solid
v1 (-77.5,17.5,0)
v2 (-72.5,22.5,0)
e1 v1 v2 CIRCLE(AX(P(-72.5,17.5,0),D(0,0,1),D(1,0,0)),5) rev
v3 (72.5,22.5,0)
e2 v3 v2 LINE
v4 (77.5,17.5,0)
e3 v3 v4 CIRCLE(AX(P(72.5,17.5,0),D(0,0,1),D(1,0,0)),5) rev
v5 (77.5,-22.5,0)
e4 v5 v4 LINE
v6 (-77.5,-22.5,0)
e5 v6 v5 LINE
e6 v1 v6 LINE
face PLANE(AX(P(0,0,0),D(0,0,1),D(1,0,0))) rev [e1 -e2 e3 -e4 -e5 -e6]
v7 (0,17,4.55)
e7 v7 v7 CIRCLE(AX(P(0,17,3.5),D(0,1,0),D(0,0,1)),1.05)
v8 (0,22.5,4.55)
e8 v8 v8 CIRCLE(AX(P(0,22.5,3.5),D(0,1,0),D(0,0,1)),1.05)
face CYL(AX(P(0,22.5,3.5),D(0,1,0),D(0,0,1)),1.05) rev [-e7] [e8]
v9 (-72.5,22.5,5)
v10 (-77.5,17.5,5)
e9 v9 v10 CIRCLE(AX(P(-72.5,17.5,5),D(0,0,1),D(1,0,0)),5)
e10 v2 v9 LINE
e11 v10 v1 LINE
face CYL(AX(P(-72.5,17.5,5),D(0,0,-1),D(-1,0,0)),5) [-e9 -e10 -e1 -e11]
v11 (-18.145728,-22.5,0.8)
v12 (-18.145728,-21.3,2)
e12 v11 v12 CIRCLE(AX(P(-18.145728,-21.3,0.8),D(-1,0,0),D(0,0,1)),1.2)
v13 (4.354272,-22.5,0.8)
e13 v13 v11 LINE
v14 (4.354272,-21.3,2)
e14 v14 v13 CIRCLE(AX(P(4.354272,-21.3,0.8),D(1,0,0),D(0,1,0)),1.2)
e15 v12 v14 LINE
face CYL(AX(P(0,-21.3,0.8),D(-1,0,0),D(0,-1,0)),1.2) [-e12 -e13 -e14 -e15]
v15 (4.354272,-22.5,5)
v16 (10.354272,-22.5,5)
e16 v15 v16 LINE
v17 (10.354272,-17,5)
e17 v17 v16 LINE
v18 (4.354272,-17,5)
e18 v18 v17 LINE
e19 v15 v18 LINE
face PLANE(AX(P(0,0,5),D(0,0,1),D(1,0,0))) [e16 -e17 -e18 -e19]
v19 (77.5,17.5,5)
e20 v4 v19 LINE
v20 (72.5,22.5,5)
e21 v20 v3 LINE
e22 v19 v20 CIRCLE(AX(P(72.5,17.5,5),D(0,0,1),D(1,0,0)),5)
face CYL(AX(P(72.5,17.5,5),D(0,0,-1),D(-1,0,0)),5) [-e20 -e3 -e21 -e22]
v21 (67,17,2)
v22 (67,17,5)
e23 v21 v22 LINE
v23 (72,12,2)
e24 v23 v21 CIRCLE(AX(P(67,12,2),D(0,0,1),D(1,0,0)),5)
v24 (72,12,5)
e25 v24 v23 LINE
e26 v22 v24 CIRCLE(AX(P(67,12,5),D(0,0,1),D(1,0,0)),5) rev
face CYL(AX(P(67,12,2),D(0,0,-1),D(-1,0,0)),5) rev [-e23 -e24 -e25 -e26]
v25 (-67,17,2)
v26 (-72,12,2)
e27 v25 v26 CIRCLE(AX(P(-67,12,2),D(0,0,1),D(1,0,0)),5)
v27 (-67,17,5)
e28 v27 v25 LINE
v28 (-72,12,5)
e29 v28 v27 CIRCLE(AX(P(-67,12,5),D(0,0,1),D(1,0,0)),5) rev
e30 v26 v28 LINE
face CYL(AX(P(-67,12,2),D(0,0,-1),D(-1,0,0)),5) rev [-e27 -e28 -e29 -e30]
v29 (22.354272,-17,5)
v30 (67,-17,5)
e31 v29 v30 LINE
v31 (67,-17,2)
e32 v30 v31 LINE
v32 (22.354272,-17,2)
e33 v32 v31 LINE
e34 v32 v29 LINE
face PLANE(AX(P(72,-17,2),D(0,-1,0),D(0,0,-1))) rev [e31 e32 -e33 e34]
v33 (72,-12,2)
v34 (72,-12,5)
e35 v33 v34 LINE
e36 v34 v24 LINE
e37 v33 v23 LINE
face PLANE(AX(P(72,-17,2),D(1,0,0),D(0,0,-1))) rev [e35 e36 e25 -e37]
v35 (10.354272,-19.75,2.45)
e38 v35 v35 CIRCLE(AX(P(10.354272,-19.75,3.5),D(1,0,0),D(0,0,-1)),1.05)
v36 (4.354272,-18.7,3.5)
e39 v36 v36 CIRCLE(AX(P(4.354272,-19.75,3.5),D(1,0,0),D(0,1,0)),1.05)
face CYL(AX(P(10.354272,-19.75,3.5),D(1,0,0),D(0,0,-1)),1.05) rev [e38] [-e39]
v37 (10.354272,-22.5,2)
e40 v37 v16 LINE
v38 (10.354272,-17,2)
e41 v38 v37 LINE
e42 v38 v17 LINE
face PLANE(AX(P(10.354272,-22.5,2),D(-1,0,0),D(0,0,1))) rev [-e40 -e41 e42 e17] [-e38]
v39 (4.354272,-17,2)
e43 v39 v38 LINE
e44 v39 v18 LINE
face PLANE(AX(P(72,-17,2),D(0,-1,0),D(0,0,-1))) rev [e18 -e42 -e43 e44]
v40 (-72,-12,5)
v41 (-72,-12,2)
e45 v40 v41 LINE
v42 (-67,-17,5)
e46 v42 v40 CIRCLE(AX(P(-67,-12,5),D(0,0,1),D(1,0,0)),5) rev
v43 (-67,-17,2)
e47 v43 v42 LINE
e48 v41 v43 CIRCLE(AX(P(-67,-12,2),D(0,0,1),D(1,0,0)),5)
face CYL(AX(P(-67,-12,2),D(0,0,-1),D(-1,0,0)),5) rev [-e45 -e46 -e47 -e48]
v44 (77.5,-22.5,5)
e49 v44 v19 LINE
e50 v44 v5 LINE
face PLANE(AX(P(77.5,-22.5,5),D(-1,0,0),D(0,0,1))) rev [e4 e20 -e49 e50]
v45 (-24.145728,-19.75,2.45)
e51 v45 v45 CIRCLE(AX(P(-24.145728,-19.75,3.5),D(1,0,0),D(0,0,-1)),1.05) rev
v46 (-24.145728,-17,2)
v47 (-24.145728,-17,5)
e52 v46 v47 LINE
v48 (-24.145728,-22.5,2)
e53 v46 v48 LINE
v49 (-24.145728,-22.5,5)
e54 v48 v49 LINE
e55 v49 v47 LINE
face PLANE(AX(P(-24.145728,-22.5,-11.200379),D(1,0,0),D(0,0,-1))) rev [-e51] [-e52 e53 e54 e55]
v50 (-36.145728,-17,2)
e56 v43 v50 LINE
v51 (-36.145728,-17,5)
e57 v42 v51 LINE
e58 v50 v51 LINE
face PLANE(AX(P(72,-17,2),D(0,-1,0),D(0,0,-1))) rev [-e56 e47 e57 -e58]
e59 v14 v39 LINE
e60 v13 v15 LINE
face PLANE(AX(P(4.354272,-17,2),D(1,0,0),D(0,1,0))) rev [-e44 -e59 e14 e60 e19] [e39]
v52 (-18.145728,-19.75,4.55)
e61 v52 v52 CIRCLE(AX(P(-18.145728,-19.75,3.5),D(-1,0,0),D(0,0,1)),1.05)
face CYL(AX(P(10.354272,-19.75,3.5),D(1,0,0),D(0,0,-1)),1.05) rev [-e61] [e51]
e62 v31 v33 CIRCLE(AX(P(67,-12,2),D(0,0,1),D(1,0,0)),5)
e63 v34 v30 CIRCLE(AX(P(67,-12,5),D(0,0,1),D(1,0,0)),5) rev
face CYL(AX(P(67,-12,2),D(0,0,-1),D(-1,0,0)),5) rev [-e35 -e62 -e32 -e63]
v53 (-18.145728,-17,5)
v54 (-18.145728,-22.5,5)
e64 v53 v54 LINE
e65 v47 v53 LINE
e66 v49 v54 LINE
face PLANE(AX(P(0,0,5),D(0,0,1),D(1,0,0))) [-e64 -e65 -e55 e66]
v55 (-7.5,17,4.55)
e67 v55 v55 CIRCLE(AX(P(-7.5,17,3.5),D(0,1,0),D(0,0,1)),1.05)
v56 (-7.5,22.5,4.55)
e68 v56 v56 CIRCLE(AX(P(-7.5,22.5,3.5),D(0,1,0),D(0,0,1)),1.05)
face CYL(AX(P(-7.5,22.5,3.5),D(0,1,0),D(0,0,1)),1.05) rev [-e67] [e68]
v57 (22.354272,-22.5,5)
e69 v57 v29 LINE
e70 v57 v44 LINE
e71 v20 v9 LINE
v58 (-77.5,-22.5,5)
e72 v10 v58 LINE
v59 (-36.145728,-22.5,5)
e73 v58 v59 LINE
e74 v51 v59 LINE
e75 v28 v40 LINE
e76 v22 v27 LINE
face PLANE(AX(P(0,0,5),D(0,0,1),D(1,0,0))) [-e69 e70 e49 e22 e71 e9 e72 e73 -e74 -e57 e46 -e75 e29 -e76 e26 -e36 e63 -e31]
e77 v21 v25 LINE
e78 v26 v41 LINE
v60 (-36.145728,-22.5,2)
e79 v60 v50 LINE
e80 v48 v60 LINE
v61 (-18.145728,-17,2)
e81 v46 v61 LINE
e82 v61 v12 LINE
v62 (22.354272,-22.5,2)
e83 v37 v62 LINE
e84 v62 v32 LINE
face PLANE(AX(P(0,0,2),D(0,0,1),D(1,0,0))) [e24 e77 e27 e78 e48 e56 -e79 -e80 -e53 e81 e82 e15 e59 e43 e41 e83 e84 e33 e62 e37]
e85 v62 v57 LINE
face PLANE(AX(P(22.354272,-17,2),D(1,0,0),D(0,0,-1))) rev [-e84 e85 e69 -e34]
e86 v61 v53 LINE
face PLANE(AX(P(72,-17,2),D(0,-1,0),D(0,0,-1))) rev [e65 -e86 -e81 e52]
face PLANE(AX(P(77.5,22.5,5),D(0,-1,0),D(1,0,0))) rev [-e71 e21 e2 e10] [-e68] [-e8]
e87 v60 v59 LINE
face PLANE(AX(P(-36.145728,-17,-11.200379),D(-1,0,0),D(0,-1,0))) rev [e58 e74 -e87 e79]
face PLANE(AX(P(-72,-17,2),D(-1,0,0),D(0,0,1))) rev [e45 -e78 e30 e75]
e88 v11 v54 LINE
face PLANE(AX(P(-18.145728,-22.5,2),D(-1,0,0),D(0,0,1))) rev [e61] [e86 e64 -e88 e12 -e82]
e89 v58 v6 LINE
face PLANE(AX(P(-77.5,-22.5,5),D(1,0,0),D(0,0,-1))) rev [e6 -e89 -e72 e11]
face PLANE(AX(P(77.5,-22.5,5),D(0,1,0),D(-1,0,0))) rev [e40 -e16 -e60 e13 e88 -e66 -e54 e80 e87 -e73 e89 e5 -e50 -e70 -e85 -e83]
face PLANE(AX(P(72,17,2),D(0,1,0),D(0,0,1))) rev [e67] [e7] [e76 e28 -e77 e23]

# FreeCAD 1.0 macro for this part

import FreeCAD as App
import Part
import Sketcher
from FreeCAD import Vector
Q = App.Units.Quantity


def edges_at(feature, points):
    """Names of the edges that pass closest to the given points."""
    edges = feature.Shape.Edges
    near = lambda p: min(range(len(edges)), key=lambda i: edges[i].distToShape(Part.Vertex(*p))[0])
    return sorted({f"Edge{near(p) + 1}" for p in points})


def add_polygon(sketch, points):
    """Adds a closed chain of lines whose ends are joined by coincident constraints."""
    first, n = sketch.GeometryCount, len(points)
    for a, b in zip(points, points[1:] + points[:1]):
        sketch.addGeometry(Part.LineSegment(App.Vector(*a, 0), App.Vector(*b, 0)), False)
    for i in range(n):
        sketch.addConstraint(Sketcher.Constraint("Coincident", first + i, 2, first + (i + 1) % n, 1))

doc = App.newDocument("Part")
body = doc.addObject("PartDesign::Body", "Body")

sketch1 = body.newObject("Sketcher::SketchObject", "Sketch")
sketch1.AttachmentSupport = (doc.getObject("XY_Plane"), [""])
sketch1.MapMode = "FlatFace"
add_polygon(sketch1, [(-78, 22), (-78, -22), (78, -22), (78, 22)])
sketch1.addConstraint(Sketcher.Constraint("Vertical", 0))
sketch1.addConstraint(Sketcher.Constraint("Horizontal", 1))
sketch1.addConstraint(Sketcher.Constraint("Vertical", 2))
sketch1.addConstraint(Sketcher.Constraint("Horizontal", 3))
sketch1.addConstraint(Sketcher.Constraint("Symmetric", 0, 2, 2, 2, -1, 1))
sketch1.addConstraint(Sketcher.Constraint("DistanceX", 1, 1, 1, 2, Q("155 mm")))
sketch1.addConstraint(Sketcher.Constraint("DistanceY", 0, 2, 0, 1, Q("45 mm")))
pad1 = body.newObject("PartDesign::Pad", "Pad")
pad1.Profile = sketch1
pad1.Length = 5

sketch2 = body.newObject("Sketcher::SketchObject", "Sketch001")
sketch2.AttachmentSupport = (doc.getObject("XY_Plane"), [""])
sketch2.MapMode = "FlatFace"
sketch2.AttachmentOffset = App.Placement(Vector(0, 0, 5), App.Rotation())
add_polygon(sketch2, [(-72, 17), (-72, -17), (72, -17), (72, 17)])
sketch2.addConstraint(Sketcher.Constraint("Vertical", 0))
sketch2.addConstraint(Sketcher.Constraint("Horizontal", 1))
sketch2.addConstraint(Sketcher.Constraint("Vertical", 2))
sketch2.addConstraint(Sketcher.Constraint("Horizontal", 3))
sketch2.addConstraint(Sketcher.Constraint("Symmetric", 0, 2, 2, 2, -1, 1))
sketch2.addConstraint(Sketcher.Constraint("DistanceX", 1, 1, 1, 2, Q("144 mm")))
sketch2.addConstraint(Sketcher.Constraint("DistanceY", 0, 2, 0, 1, Q("34 mm")))
pocket1 = body.newObject("PartDesign::Pocket", "Pocket")
pocket1.Profile = sketch2
pocket1.Length = 3
doc.recompute()

fillet = body.newObject("PartDesign::Fillet", "Fillet")
fillet.Base = (pocket1, edges_at(pocket1, [(-77.5, 22.5, 2.5), (77.5, 22.5, 2.5)]))
fillet.Radius = 5
doc.recompute()

fillet2 = body.newObject("PartDesign::Fillet", "Fillet001")
fillet2.Base = (fillet, edges_at(fillet, [
    (-72, -17, 3.5),
    (-72, 17, 3.5),
    (72, 17, 3.5),
    (72, -17, 3.5),
]))
fillet2.Radius = 5

sketch3 = body.newObject("Sketcher::SketchObject", "Sketch002")
sketch3.AttachmentSupport = (doc.getObject("XY_Plane"), [""])
sketch3.MapMode = "FlatFace"
sketch3.AttachmentOffset = App.Placement(Vector(0, 0, 5), App.Rotation())
add_polygon(sketch3, [(-18, -17), (-18, -22), (4, -22), (4, -17)])
sketch3.addConstraint(Sketcher.Constraint("Vertical", 0))
sketch3.addConstraint(Sketcher.Constraint("Horizontal", 1))
sketch3.addConstraint(Sketcher.Constraint("Vertical", 2))
sketch3.addConstraint(Sketcher.Constraint("Horizontal", 3))
sketch3.addConstraint(Sketcher.Constraint("DistanceX", 1, 1, 1, 2, Q("22.5 mm")))
sketch3.addConstraint(Sketcher.Constraint("DistanceY", 0, 2, 0, 1, Q("5.5 mm")))
sketch3.addConstraint(Sketcher.Constraint("DistanceY", 2, 2, -1, 1, Q("17 mm")))
sketch3.addConstraint(Sketcher.Constraint("DistanceX", 0, 2, -1, 1, Q("18.145728 mm")))
pocket2 = body.newObject("PartDesign::Pocket", "Pocket001")
pocket2.Profile = sketch3
pocket2.Length = 3
doc.recompute()

fillet3 = body.newObject("PartDesign::Fillet", "Fillet002")
fillet3.Base = (pocket2, edges_at(pocket2, [(-6.896, -22.5, 2)]))
fillet3.Radius = 1.2

sketch4 = body.newObject("Sketcher::SketchObject", "Sketch003")
sketch4.AttachmentSupport = (doc.getObject("XY_Plane"), [""])
sketch4.MapMode = "FlatFace"
sketch4.AttachmentOffset = App.Placement(Vector(0, 0, 5), App.Rotation())
add_polygon(sketch4, [(10, -17), (10, -22), (22, -22), (22, -17)])
sketch4.addConstraint(Sketcher.Constraint("Vertical", 0))
sketch4.addConstraint(Sketcher.Constraint("Horizontal", 1))
sketch4.addConstraint(Sketcher.Constraint("Vertical", 2))
sketch4.addConstraint(Sketcher.Constraint("Horizontal", 3))
sketch4.addConstraint(Sketcher.Constraint("DistanceX", 1, 1, 1, 2, Q("12 mm")))
sketch4.addConstraint(Sketcher.Constraint("DistanceY", 0, 2, 0, 1, Q("5.5 mm")))
sketch4.addConstraint(Sketcher.Constraint("DistanceY", 2, 2, -1, 1, Q("17 mm")))
sketch4.addConstraint(Sketcher.Constraint("DistanceX", -1, 1, 0, 2, Q("10.354272 mm")))
pocket3 = body.newObject("PartDesign::Pocket", "Pocket002")
pocket3.Profile = sketch4
pocket3.Length = 3

sketch5 = body.newObject("Sketcher::SketchObject", "Sketch004")
sketch5.AttachmentSupport = (doc.getObject("XZ_Plane"), [""])
sketch5.MapMode = "FlatFace"
sketch5.AttachmentOffset = App.Placement(Vector(0, 0, 19.75), App.Rotation())
add_polygon(sketch5, [(-26.3, 3.5), (10.4, 3.5), (10.4, 2.5), (-25.6, 2.5)])
sketch5.addGeometry(Part.LineSegment(Vector(10.4, 3.5, 0), Vector(-26.3, 3.5, 0)), True)
sketch5.addConstraint(Sketcher.Constraint("Horizontal", 0))
sketch5.addConstraint(Sketcher.Constraint("Vertical", 1))
sketch5.addConstraint(Sketcher.Constraint("Horizontal", 2))
sketch5.addConstraint(Sketcher.Constraint("Horizontal", 4))
sketch5.addConstraint(Sketcher.Constraint("Coincident", 4, 1, 0, 2))
sketch5.addConstraint(Sketcher.Constraint("Equal", 0, 4))
sketch5.addConstraint(Sketcher.Constraint("DistanceX", 2, 2, 2, 1, Q("36 mm")))
sketch5.addConstraint(Sketcher.Constraint("Angle", 3, Q("121 deg")))
sketch5.addConstraint(Sketcher.Constraint("DistanceY", 1, 2, 1, 1, Q("1.05 mm")))
sketch5.addConstraint(Sketcher.Constraint("DistanceY", -1, 1, 0, 2, Q("3.5 mm")))
sketch5.addConstraint(Sketcher.Constraint("DistanceX", 3, 2, -1, 1, Q("26.276631 mm")))
groove = body.newObject("PartDesign::Groove", "Groove")
groove.Profile = sketch5
groove.ReferenceAxis = (sketch5, ["Axis0"])
groove.Angle = 360

sketch6 = body.newObject("Sketcher::SketchObject", "Sketch005")
sketch6.AttachmentSupport = (doc.getObject("XZ_Plane"), [""])
sketch6.MapMode = "FlatFace"
sketch6.AttachmentOffset = App.Placement(Vector(0, 0, -22.5), App.Rotation())
sketch6.addGeometry(Part.Circle(Vector(0, 3.5, 0), Vector(0, 0, 1), 1.1), False)
sketch6.addGeometry(Part.Circle(Vector(-7.5, 3.5, 0), Vector(0, 0, 1), 1.1), False)
sketch6.addConstraint(Sketcher.Constraint("Equal", 0, 1))
sketch6.addConstraint(Sketcher.Constraint("PointOnObject", 0, 3, -2))
sketch6.addConstraint(Sketcher.Constraint("Horizontal", 0, 3, 1, 3))
sketch6.addConstraint(Sketcher.Constraint("Diameter", 0, Q("2.1 mm")))
sketch6.addConstraint(Sketcher.Constraint("DistanceY", -1, 1, 0, 3, Q("3.5 mm")))
sketch6.addConstraint(Sketcher.Constraint("DistanceX", 1, 3, -1, 1, Q("7.5 mm")))
doc.recompute()
hole = body.newObject("PartDesign::Hole", "Hole")
hole.Profile = sketch6
hole.ThreadType = "None"
hole.Diameter = 2.1
hole.DepthType = "Dimension"
hole.Depth = 13.2
hole.DrillPoint = "Angled"
hole.DrillPointAngle = 118
hole.Reversed = True

sketch7 = body.newObject("Sketcher::SketchObject", "Sketch006")
sketch7.AttachmentSupport = (doc.getObject("XY_Plane"), [""])
sketch7.MapMode = "FlatFace"
sketch7.AttachmentOffset = App.Placement(Vector(0, 0, 5), App.Rotation())
add_polygon(sketch7, [(-36, -17), (-36, -22), (-24, -22), (-24, -17)])
sketch7.addConstraint(Sketcher.Constraint("Vertical", 0))
sketch7.addConstraint(Sketcher.Constraint("Horizontal", 1))
sketch7.addConstraint(Sketcher.Constraint("Vertical", 2))
sketch7.addConstraint(Sketcher.Constraint("Horizontal", 3))
sketch7.addConstraint(Sketcher.Constraint("DistanceX", 1, 1, 1, 2, Q("12 mm")))
sketch7.addConstraint(Sketcher.Constraint("DistanceY", 0, 2, 0, 1, Q("5.5 mm")))
sketch7.addConstraint(Sketcher.Constraint("DistanceY", 2, 2, -1, 1, Q("17 mm")))
sketch7.addConstraint(Sketcher.Constraint("DistanceX", 0, 2, -1, 1, Q("36.145728 mm")))
pocket4 = body.newObject("PartDesign::Pocket", "Pocket003")
pocket4.Profile = sketch7
pocket4.Length = 3

doc.recompute()
